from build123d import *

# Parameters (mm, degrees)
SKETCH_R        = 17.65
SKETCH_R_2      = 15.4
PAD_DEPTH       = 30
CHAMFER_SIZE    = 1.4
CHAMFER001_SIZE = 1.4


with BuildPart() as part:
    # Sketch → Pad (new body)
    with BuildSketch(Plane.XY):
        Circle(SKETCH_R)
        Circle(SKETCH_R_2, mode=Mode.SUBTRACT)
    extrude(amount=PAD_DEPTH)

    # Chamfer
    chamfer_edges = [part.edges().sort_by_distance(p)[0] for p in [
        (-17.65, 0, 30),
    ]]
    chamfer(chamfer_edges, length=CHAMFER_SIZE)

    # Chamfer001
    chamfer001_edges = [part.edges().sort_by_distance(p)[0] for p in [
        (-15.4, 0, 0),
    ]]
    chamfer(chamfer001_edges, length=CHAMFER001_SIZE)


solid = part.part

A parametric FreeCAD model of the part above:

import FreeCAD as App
import Part
import Sketcher

V = App.Vector


def edges_at(feature, points):
    """Names of the edges that pass closest to the given points."""
    edges = feature.Shape.Edges
    near = lambda p: min(range(len(edges)), key=lambda i: edges[i].distToShape(Part.Vertex(*p))[0])
    return sorted({f"Edge{near(p) + 1}" for p in points})

doc = App.newDocument("Part")
params = doc.addObject("Spreadsheet::Sheet", "Params")
for row, (alias, value) in enumerate([
    ("sketch1_diameter", "35.3 mm"),
    ("sketch1_diameter2", "30.8 mm"),
    ("pad1_length", "30 mm"),
    ("chamfer_size", "1.4 mm"),
    ("chamfer2_size", "1.4 mm"),
], start=1):
    params.set(f"A{row}", alias)
    params.set(f"B{row}", "=" + value)
    params.setAlias(f"B{row}", alias)

body = doc.addObject("PartDesign::Body", "Body")

sketch1 = body.newObject("Sketcher::SketchObject", "Sketch")
sketch1.AttachmentSupport = (doc.getObject("XY_Plane"), [""])
sketch1.MapMode = "FlatFace"
sketch1.addGeometry([
    Part.Circle(V(0, 0, 0), V(0, 0, 1), 18),
    Part.Circle(V(0, 0, 0), V(0, 0, 1), 15),
], False)
sketch1.addConstraint([
    Sketcher.Constraint("Coincident", 0, 3, -1, 1),
    Sketcher.Constraint("Coincident", 1, 3, -1, 1),
    Sketcher.Constraint("Diameter", 0, 35.3),
    Sketcher.Constraint("Diameter", 1, 30.8),
])
sketch1.setExpression("Constraints[2]", "Params.sketch1_diameter")
sketch1.setExpression("Constraints[3]", "Params.sketch1_diameter2")
pad1 = body.newObject("PartDesign::Pad", "Pad")
pad1.Profile = sketch1
pad1.setExpression("Length", "Params.pad1_length")
doc.recompute()

chamfer = body.newObject("PartDesign::Chamfer", "Chamfer")
chamfer.Base = (pad1, edges_at(pad1, [(-17.65, 0, 30)]))
chamfer.setExpression("Size", "Params.chamfer_size")
doc.recompute()

chamfer2 = body.newObject("PartDesign::Chamfer", "Chamfer001")
chamfer2.Base = (chamfer, edges_at(chamfer, [(-15.4, 0, 0)]))
chamfer2.setExpression("Size", "Params.chamfer2_size")

doc.recompute()
